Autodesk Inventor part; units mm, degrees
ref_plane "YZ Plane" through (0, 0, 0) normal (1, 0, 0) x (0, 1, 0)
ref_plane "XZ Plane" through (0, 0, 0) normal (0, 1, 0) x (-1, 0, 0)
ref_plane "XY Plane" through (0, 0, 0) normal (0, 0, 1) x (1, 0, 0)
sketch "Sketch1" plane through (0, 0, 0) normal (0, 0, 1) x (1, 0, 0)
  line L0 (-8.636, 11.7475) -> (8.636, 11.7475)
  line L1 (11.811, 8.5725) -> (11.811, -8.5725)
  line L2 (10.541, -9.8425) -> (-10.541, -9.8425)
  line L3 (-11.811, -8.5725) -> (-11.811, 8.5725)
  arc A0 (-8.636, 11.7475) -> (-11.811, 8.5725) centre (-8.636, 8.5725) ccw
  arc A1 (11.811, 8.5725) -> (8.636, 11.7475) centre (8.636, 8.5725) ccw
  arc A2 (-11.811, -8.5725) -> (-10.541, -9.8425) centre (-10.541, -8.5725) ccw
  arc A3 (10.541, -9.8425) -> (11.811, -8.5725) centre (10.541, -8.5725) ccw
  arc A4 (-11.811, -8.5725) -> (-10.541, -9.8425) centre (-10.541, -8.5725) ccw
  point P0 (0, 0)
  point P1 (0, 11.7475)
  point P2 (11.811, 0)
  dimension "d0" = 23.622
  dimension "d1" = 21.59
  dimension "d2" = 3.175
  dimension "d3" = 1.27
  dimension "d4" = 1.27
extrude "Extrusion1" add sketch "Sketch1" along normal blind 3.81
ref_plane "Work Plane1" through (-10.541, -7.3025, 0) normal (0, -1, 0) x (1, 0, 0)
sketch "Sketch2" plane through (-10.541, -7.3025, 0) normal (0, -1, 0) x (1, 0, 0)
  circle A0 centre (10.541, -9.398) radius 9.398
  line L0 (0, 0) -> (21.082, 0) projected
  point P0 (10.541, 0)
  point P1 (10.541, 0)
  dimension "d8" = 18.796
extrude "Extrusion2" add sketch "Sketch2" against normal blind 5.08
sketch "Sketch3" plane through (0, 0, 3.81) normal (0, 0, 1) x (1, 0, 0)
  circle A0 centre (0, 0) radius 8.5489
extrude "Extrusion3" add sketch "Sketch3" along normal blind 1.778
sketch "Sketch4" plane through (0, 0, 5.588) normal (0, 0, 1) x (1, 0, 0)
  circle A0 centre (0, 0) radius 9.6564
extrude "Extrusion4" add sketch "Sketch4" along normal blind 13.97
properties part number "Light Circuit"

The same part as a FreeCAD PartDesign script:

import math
import FreeCAD as App
import Part
import Sketcher
from FreeCAD import Vector
Q = App.Units.Quantity

doc = App.newDocument("Part")
body = doc.addObject("PartDesign::Body", "Body")
body.AllowCompound = True

# Sketch on XY plane
sketch1 = body.newObject("Sketcher::SketchObject", "Sketch")
sketch1.AttachmentSupport = (doc.getObject("XY_Plane"), [""])
sketch1.MapMode = "FlatFace"
sketch1.addGeometry(Part.LineSegment(Vector(8.6, 11.7, 0), Vector(-8.6, 11.7, 0)), False)
sketch1.addGeometry(Part.ArcOfCircle(Part.Circle(Vector(-8.6, 8.6, 0), Vector(0, 0, 1), 3.2), math.radians(90), math.radians(180)), False)
sketch1.addGeometry(Part.LineSegment(Vector(-11.8, 8.6, 0), Vector(-11.8, -8.6, 0)), False)
sketch1.addGeometry(Part.ArcOfCircle(Part.Circle(Vector(-10.5, -8.6, 0), Vector(0, 0, 1), 1.3), math.radians(180), math.radians(270)), False)
sketch1.addGeometry(Part.LineSegment(Vector(-10.5, -9.8, 0), Vector(10.5, -9.8, 0)), False)
sketch1.addGeometry(Part.ArcOfCircle(Part.Circle(Vector(10.5, -8.6, 0), Vector(0, 0, 1), 1.3), math.radians(-90), math.radians(0)), False)
sketch1.addGeometry(Part.LineSegment(Vector(11.8, -8.6, 0), Vector(11.8, 8.6, 0)), False)
sketch1.addGeometry(Part.ArcOfCircle(Part.Circle(Vector(8.6, 8.6, 0), Vector(0, 0, 1), 3.2), math.radians(0), math.radians(90)), False)
sketch1.addConstraint(Sketcher.Constraint("Tangent", 0, 2, 1, 1))
sketch1.addConstraint(Sketcher.Constraint("Tangent", 1, 2, 2, 1))
sketch1.addConstraint(Sketcher.Constraint("Tangent", 2, 2, 3, 1))
sketch1.addConstraint(Sketcher.Constraint("Tangent", 3, 2, 4, 1))
sketch1.addConstraint(Sketcher.Constraint("Tangent", 4, 2, 5, 1))
sketch1.addConstraint(Sketcher.Constraint("Tangent", 5, 2, 6, 1))
sketch1.addConstraint(Sketcher.Constraint("Tangent", 6, 2, 7, 1))
sketch1.addConstraint(Sketcher.Constraint("Tangent", 7, 2, 0, 1))
sketch1.addConstraint(Sketcher.Constraint("Horizontal", 0))
sketch1.addConstraint(Sketcher.Constraint("Vertical", 2))
sketch1.addConstraint(Sketcher.Constraint("Horizontal", 4))
sketch1.addConstraint(Sketcher.Constraint("Vertical", 6))
sketch1.addConstraint(Sketcher.Constraint("Equal", 3, 5))
sketch1.addConstraint(Sketcher.Constraint("Equal", 1, 7))
sketch1.addConstraint(Sketcher.Constraint("Symmetric", 1, 2, 5, 2, -1, 1))
sketch1.addConstraint(Sketcher.Constraint("Radius", 3, Q("0.05 in")))
sketch1.addConstraint(Sketcher.Constraint("Radius", 1, Q("0.125 in")))
sketch1.addConstraint(Sketcher.Constraint("DistanceX", 0, 2, 0, 1, Q("0.68 in")))
sketch1.addConstraint(Sketcher.Constraint("DistanceY", 3, 3, 0, 2, Q("0.8 in")))
pad1 = body.newObject("PartDesign::Pad", "Pad")
pad1.Profile = sketch1
pad1.Length = Q("0.15 in")

# Sketch on XZ plane
sketch2 = body.newObject("Sketcher::SketchObject", "Sketch001")
sketch2.AttachmentSupport = (doc.getObject("XZ_Plane"), [""])
sketch2.MapMode = "FlatFace"
sketch2.AttachmentOffset = App.Placement(Vector(0, 0, 0.2875 * 25.4), App.Rotation())
sketch2.addGeometry(Part.Circle(Vector(0, -9, 0), Vector(0, 0, 1), 9), False)
sketch2.addConstraint(Sketcher.Constraint("PointOnObject", 0, 3, -2))
sketch2.addConstraint(Sketcher.Constraint("Diameter", 0, Q("0.74 in")))
sketch2.addConstraint(Sketcher.Constraint("DistanceY", 0, 3, -1, 1, Q("0.37 in")))
pad2 = body.newObject("PartDesign::Pad", "Pad001")
pad2.Profile = sketch2
pad2.Length = Q("0.2 in")
pad2.Reversed = True

# Sketch on XY plane
sketch3 = body.newObject("Sketcher::SketchObject", "Sketch002")
sketch3.AttachmentSupport = (doc.getObject("XY_Plane"), [""])
sketch3.MapMode = "FlatFace"
sketch3.AttachmentOffset = App.Placement(Vector(0, 0, 0.15 * 25.4), App.Rotation())
sketch3.addGeometry(Part.Circle(Vector(0, 0, 0), Vector(0, 0, 1), 9), False)
sketch3.addConstraint(Sketcher.Constraint("Coincident", 0, 3, -1, 1))
sketch3.addConstraint(Sketcher.Constraint("Diameter", 0, Q("17.0978 mm")))
pad3 = body.newObject("PartDesign::Pad", "Pad002")
pad3.Profile = sketch3
pad3.Length = Q("0.07 in")

# Sketch on XY plane
sketch4 = body.newObject("Sketcher::SketchObject", "Sketch003")
sketch4.AttachmentSupport = (doc.getObject("XY_Plane"), [""])
sketch4.MapMode = "FlatFace"
sketch4.AttachmentOffset = App.Placement(Vector(0, 0, 0.22 * 25.4), App.Rotation())
sketch4.addGeometry(Part.Circle(Vector(0, 0, 0), Vector(0, 0, 1), 10), False)
sketch4.addConstraint(Sketcher.Constraint("Coincident", 0, 3, -1, 1))
sketch4.addConstraint(Sketcher.Constraint("Diameter", 0, Q("19.3128 mm")))
pad4 = body.newObject("PartDesign::Pad", "Pad003")
pad4.Profile = sketch4
pad4.Length = Q("0.55 in")

doc.recompute()
